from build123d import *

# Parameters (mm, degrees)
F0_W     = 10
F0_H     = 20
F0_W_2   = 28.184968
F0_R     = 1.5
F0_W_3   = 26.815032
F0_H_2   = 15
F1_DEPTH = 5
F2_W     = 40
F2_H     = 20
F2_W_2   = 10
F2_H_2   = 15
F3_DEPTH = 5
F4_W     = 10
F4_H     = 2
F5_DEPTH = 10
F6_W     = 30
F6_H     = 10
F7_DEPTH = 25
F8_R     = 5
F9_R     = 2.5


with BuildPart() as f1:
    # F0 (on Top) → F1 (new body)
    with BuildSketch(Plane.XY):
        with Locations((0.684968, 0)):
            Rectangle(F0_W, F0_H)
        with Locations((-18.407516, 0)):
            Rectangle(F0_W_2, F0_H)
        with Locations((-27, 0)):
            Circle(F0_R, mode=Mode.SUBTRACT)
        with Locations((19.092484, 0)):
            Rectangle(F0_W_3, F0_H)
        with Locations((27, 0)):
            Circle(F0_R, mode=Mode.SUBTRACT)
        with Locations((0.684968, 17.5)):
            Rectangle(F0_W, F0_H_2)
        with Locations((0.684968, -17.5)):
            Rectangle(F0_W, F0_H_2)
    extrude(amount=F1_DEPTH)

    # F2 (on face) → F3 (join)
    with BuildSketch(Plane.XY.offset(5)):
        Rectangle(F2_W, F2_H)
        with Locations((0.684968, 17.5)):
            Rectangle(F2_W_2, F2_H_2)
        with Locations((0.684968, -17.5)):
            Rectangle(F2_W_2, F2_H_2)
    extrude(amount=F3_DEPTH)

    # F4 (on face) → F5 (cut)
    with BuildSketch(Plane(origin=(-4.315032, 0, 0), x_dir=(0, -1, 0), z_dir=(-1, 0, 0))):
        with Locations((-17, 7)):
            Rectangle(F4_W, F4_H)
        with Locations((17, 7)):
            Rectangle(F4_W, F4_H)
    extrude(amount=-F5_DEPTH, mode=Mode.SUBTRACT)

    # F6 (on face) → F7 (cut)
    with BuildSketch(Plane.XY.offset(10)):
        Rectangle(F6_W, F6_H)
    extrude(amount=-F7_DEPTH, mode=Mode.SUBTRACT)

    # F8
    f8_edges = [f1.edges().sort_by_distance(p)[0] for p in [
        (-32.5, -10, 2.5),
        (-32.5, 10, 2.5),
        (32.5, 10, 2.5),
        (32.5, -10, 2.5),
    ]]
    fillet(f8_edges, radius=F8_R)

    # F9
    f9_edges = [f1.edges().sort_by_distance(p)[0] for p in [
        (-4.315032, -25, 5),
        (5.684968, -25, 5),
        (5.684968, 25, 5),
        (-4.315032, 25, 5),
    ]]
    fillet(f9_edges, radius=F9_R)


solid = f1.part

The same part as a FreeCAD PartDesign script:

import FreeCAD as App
import Part
import Sketcher

V = App.Vector
Q = App.Units.Quantity


def edges_at(feature, points):
    """Names of the edges that pass closest to the given points."""
    edges = feature.Shape.Edges
    near = lambda p: min(range(len(edges)), key=lambda i: edges[i].distToShape(Part.Vertex(*p))[0])
    return sorted({f"Edge{near(p) + 1}" for p in points})

doc = App.newDocument("Part")
body = doc.addObject("PartDesign::Body", "Body")

# Sketch on XY plane
sketch1 = body.newObject("Sketcher::SketchObject", "Sketch")
sketch1.AttachmentSupport = (doc.getObject("XY_Plane"), [""])
sketch1.MapMode = "FlatFace"
sketch1.addGeometry([
    Part.LineSegment(V(-32.5, -10, 0), V(-4.3, -10, 0)),  # 0
    Part.LineSegment(V(-4.3, -10, 0), V(-4.3, -25, 0)),  # 1
    Part.LineSegment(V(-4.3, -25, 0), V(5.7, -25, 0)),  # 2
    Part.LineSegment(V(5.7, -25, 0), V(5.7, -10, 0)),  # 3
    Part.LineSegment(V(5.7, -10, 0), V(32.5, -10, 0)),  # 4
    Part.LineSegment(V(32.5, -10, 0), V(32.5, 10, 0)),  # 5
    Part.LineSegment(V(32.5, 10, 0), V(5.7, 10, 0)),  # 6
    Part.LineSegment(V(5.7, 10, 0), V(5.7, 25, 0)),  # 7
    Part.LineSegment(V(5.7, 25, 0), V(-4.3, 25, 0)),  # 8
    Part.LineSegment(V(-4.3, 25, 0), V(-4.3, 10, 0)),  # 9
    Part.LineSegment(V(-4.3, 10, 0), V(-32.5, 10, 0)),  # 10
    Part.LineSegment(V(-32.5, 10, 0), V(-32.5, -10, 0)),  # 11
    Part.Circle(V(-27, 0, 0), V(0, 0, 1), 1.5),  # 12
    Part.Circle(V(27, 0, 0), V(0, 0, 1), 1.5),  # 13
], False)
sketch1.addConstraint([
    Sketcher.Constraint("Coincident", 0, 2, 1, 1),
    Sketcher.Constraint("Coincident", 1, 2, 2, 1),
    Sketcher.Constraint("Coincident", 2, 2, 3, 1),
    Sketcher.Constraint("Coincident", 3, 2, 4, 1),
    Sketcher.Constraint("Coincident", 4, 2, 5, 1),
    Sketcher.Constraint("Coincident", 5, 2, 6, 1),
    Sketcher.Constraint("Coincident", 6, 2, 7, 1),
    Sketcher.Constraint("Coincident", 7, 2, 8, 1),
    Sketcher.Constraint("Coincident", 8, 2, 9, 1),
    Sketcher.Constraint("Coincident", 9, 2, 10, 1),
    Sketcher.Constraint("Coincident", 10, 2, 11, 1),
    Sketcher.Constraint("Coincident", 11, 2, 0, 1),
    Sketcher.Constraint("Horizontal", 0),
    Sketcher.Constraint("Vertical", 1),
    Sketcher.Constraint("Horizontal", 2),
    Sketcher.Constraint("Vertical", 3),
    Sketcher.Constraint("Horizontal", 4),
    Sketcher.Constraint("Vertical", 5),
    Sketcher.Constraint("Horizontal", 6),
    Sketcher.Constraint("Vertical", 7),
    Sketcher.Constraint("Horizontal", 8),
    Sketcher.Constraint("Vertical", 9),
    Sketcher.Constraint("Horizontal", 10),
    Sketcher.Constraint("Vertical", 11),
    Sketcher.Constraint("Equal", 12, 13),
    Sketcher.Constraint("Symmetric", 12, 3, 13, 3, -1, 1),
    Sketcher.Constraint("Symmetric", 4, 2, 10, 2, -1, 1),
    Sketcher.Constraint("Symmetric", 3, 2, 6, 2, -1),
    Sketcher.Constraint("Symmetric", 1, 2, 8, 2, -1),
    Sketcher.Constraint("PointOnObject", 12, 3, -1),
    Sketcher.Constraint("Horizontal", 0, 2, 3, 2),
    Sketcher.Constraint("Diameter", 12, Q("3 mm")),
    Sketcher.Constraint("DistanceX", 2, 1, 2, 2, Q("10 mm")),
    Sketcher.Constraint("DistanceY", 1, 2, 1, 1, Q("15 mm")),
    Sketcher.Constraint("DistanceY", 5, 1, 5, 2, Q("20 mm")),
    Sketcher.Constraint("DistanceX", 12, 3, -1, 1, Q("27 mm")),
    Sketcher.Constraint("DistanceX", -1, 1, 4, 2, Q("32.5 mm")),
    Sketcher.Constraint("DistanceX", 0, 1, 0, 2, Q("28.184968 mm")),
])
pad1 = body.newObject("PartDesign::Pad", "Pad")
pad1.Profile = sketch1
pad1.Length = 5

# Sketch on XY plane
sketch2 = body.newObject("Sketcher::SketchObject", "Sketch001")
sketch2.AttachmentSupport = (doc.getObject("XY_Plane"), [""])
sketch2.MapMode = "FlatFace"
sketch2.AttachmentOffset = App.Placement(V(0, 0, 5), App.Rotation())
sketch2.addGeometry([
    Part.LineSegment(V(-20, 10, 0), V(-20, -10, 0)),  # 0
    Part.LineSegment(V(-20, -10, 0), V(-4, -10, 0)),  # 1
    Part.LineSegment(V(-4, -10, 0), V(-4, -25, 0)),  # 2
    Part.LineSegment(V(-4, -25, 0), V(6, -25, 0)),  # 3
    Part.LineSegment(V(6, -25, 0), V(6, -10, 0)),  # 4
    Part.LineSegment(V(6, -10, 0), V(20, -10, 0)),  # 5
    Part.LineSegment(V(20, -10, 0), V(20, 10, 0)),  # 6
    Part.LineSegment(V(20, 10, 0), V(6, 10, 0)),  # 7
    Part.LineSegment(V(6, 10, 0), V(6, 25, 0)),  # 8
    Part.LineSegment(V(6, 25, 0), V(-4, 25, 0)),  # 9
    Part.LineSegment(V(-4, 25, 0), V(-4, 10, 0)),  # 10
    Part.LineSegment(V(-4, 10, 0), V(-20, 10, 0)),  # 11
], False)
sketch2.addConstraint([
    Sketcher.Constraint("Coincident", 0, 2, 1, 1),
    Sketcher.Constraint("Coincident", 1, 2, 2, 1),
    Sketcher.Constraint("Coincident", 2, 2, 3, 1),
    Sketcher.Constraint("Coincident", 3, 2, 4, 1),
    Sketcher.Constraint("Coincident", 4, 2, 5, 1),
    Sketcher.Constraint("Coincident", 5, 2, 6, 1),
    Sketcher.Constraint("Coincident", 6, 2, 7, 1),
    Sketcher.Constraint("Coincident", 7, 2, 8, 1),
    Sketcher.Constraint("Coincident", 8, 2, 9, 1),
    Sketcher.Constraint("Coincident", 9, 2, 10, 1),
    Sketcher.Constraint("Coincident", 10, 2, 11, 1),
    Sketcher.Constraint("Coincident", 11, 2, 0, 1),
    Sketcher.Constraint("Vertical", 0),
    Sketcher.Constraint("Horizontal", 1),
    Sketcher.Constraint("Vertical", 2),
    Sketcher.Constraint("Horizontal", 3),
    Sketcher.Constraint("Vertical", 4),
    Sketcher.Constraint("Horizontal", 5),
    Sketcher.Constraint("Vertical", 6),
    Sketcher.Constraint("Horizontal", 7),
    Sketcher.Constraint("Vertical", 8),
    Sketcher.Constraint("Horizontal", 9),
    Sketcher.Constraint("Vertical", 10),
    Sketcher.Constraint("Horizontal", 11),
    Sketcher.Constraint("Symmetric", 0, 2, 6, 2, -1, 1),
    Sketcher.Constraint("Symmetric", 4, 2, 7, 2, -1),
    Sketcher.Constraint("Symmetric", 2, 2, 9, 2, -1),
    Sketcher.Constraint("Horizontal", 7, 2, 10, 2),
    Sketcher.Constraint("DistanceX", 3, 1, 3, 2, Q("10 mm")),
    Sketcher.Constraint("DistanceY", 0, 2, 0, 1, Q("20 mm")),
    Sketcher.Constraint("DistanceY", 2, 2, 2, 1, Q("15 mm")),
    Sketcher.Constraint("DistanceX", 0, 2, -1, 1, Q("20 mm")),
    Sketcher.Constraint("DistanceX", 1, 1, 1, 2, Q("15.684968 mm")),
])
pad2 = body.newObject("PartDesign::Pad", "Pad001")
pad2.Profile = sketch2
pad2.Length = 5

# Sketch on YZ plane
sketch3 = body.newObject("Sketcher::SketchObject", "Sketch002")
sketch3.AttachmentSupport = (doc.getObject("YZ_Plane"), [""])
sketch3.MapMode = "FlatFace"
sketch3.AttachmentOffset = App.Placement(V(0, 0, -4.315032), App.Rotation())
sketch3.addGeometry([
    Part.LineSegment(V(22, 8, 0), V(22, 6, 0)),  # 0
    Part.LineSegment(V(22, 6, 0), V(12, 6, 0)),  # 1
    Part.LineSegment(V(12, 6, 0), V(12, 8, 0)),  # 2
    Part.LineSegment(V(12, 8, 0), V(22, 8, 0)),  # 3
    Part.LineSegment(V(-12, 8, 0), V(-12, 6, 0)),  # 4
    Part.LineSegment(V(-12, 6, 0), V(-22, 6, 0)),  # 5
    Part.LineSegment(V(-22, 6, 0), V(-22, 8, 0)),  # 6
    Part.LineSegment(V(-22, 8, 0), V(-12, 8, 0)),  # 7
], False)
sketch3.addConstraint([
    Sketcher.Constraint("Coincident", 0, 2, 1, 1),
    Sketcher.Constraint("Coincident", 1, 2, 2, 1),
    Sketcher.Constraint("Coincident", 2, 2, 3, 1),
    Sketcher.Constraint("Coincident", 3, 2, 0, 1),
    Sketcher.Constraint("Coincident", 4, 2, 5, 1),
    Sketcher.Constraint("Coincident", 5, 2, 6, 1),
    Sketcher.Constraint("Coincident", 6, 2, 7, 1),
    Sketcher.Constraint("Coincident", 7, 2, 4, 1),
    Sketcher.Constraint("Vertical", 0),
    Sketcher.Constraint("Horizontal", 1),
    Sketcher.Constraint("Vertical", 2),
    Sketcher.Constraint("Horizontal", 3),
    Sketcher.Constraint("Vertical", 4),
    Sketcher.Constraint("Horizontal", 5),
    Sketcher.Constraint("Vertical", 6),
    Sketcher.Constraint("Horizontal", 7),
    Sketcher.Constraint("Symmetric", 1, 2, 4, 2, -2),
    Sketcher.Constraint("Symmetric", 3, 2, 6, 2, -2),
    Sketcher.Constraint("DistanceX", 1, 2, 1, 1, Q("10 mm")),
    Sketcher.Constraint("DistanceY", 0, 2, 0, 1, Q("2 mm")),
    Sketcher.Constraint("DistanceX", -1, 1, 0, 2, Q("22 mm")),
    Sketcher.Constraint("DistanceY", -1, 1, 0, 2, Q("6 mm")),
])
pocket1 = body.newObject("PartDesign::Pocket", "Pocket")
pocket1.Profile = sketch3
pocket1.Length = 10
pocket1.Reversed = True

# Sketch on XY plane
sketch4 = body.newObject("Sketcher::SketchObject", "Sketch003")
sketch4.AttachmentSupport = (doc.getObject("XY_Plane"), [""])
sketch4.MapMode = "FlatFace"
sketch4.AttachmentOffset = App.Placement(V(0, 0, 10), App.Rotation())
sketch4.addGeometry([
    Part.LineSegment(V(-15, 5, 0), V(-15, -5, 0)),
    Part.LineSegment(V(-15, -5, 0), V(15, -5, 0)),
    Part.LineSegment(V(15, -5, 0), V(15, 5, 0)),
    Part.LineSegment(V(15, 5, 0), V(-15, 5, 0)),
], False)
sketch4.addConstraint([
    Sketcher.Constraint("Coincident", 0, 2, 1, 1),
    Sketcher.Constraint("Coincident", 1, 2, 2, 1),
    Sketcher.Constraint("Coincident", 2, 2, 3, 1),
    Sketcher.Constraint("Coincident", 3, 2, 0, 1),
    Sketcher.Constraint("Vertical", 0),
    Sketcher.Constraint("Horizontal", 1),
    Sketcher.Constraint("Vertical", 2),
    Sketcher.Constraint("Horizontal", 3),
    Sketcher.Constraint("Symmetric", 0, 2, 2, 2, -1, 1),
    Sketcher.Constraint("DistanceX", 1, 1, 1, 2, Q("30 mm")),
    Sketcher.Constraint("DistanceY", 0, 2, 0, 1, Q("10 mm")),
])
pocket2 = body.newObject("PartDesign::Pocket", "Pocket001")
pocket2.Profile = sketch4
pocket2.Length = 25
doc.recompute()

fillet = body.newObject("PartDesign::Fillet", "Fillet")
fillet.Base = (pocket2, edges_at(pocket2, [
    (-32.5, -10, 2.5),
    (-32.5, 10, 2.5),
    (32.5, 10, 2.5),
    (32.5, -10, 2.5),
]))
fillet.Radius = 5
doc.recompute()

fillet2 = body.newObject("PartDesign::Fillet", "Fillet001")
fillet2.Base = (fillet, edges_at(fillet, [
    (-4.315, -25, 5),
    (5.685, -25, 5),
    (5.685, 25, 5),
    (-4.315, 25, 5),
]))
fillet2.Radius = 2.5

doc.recompute()
